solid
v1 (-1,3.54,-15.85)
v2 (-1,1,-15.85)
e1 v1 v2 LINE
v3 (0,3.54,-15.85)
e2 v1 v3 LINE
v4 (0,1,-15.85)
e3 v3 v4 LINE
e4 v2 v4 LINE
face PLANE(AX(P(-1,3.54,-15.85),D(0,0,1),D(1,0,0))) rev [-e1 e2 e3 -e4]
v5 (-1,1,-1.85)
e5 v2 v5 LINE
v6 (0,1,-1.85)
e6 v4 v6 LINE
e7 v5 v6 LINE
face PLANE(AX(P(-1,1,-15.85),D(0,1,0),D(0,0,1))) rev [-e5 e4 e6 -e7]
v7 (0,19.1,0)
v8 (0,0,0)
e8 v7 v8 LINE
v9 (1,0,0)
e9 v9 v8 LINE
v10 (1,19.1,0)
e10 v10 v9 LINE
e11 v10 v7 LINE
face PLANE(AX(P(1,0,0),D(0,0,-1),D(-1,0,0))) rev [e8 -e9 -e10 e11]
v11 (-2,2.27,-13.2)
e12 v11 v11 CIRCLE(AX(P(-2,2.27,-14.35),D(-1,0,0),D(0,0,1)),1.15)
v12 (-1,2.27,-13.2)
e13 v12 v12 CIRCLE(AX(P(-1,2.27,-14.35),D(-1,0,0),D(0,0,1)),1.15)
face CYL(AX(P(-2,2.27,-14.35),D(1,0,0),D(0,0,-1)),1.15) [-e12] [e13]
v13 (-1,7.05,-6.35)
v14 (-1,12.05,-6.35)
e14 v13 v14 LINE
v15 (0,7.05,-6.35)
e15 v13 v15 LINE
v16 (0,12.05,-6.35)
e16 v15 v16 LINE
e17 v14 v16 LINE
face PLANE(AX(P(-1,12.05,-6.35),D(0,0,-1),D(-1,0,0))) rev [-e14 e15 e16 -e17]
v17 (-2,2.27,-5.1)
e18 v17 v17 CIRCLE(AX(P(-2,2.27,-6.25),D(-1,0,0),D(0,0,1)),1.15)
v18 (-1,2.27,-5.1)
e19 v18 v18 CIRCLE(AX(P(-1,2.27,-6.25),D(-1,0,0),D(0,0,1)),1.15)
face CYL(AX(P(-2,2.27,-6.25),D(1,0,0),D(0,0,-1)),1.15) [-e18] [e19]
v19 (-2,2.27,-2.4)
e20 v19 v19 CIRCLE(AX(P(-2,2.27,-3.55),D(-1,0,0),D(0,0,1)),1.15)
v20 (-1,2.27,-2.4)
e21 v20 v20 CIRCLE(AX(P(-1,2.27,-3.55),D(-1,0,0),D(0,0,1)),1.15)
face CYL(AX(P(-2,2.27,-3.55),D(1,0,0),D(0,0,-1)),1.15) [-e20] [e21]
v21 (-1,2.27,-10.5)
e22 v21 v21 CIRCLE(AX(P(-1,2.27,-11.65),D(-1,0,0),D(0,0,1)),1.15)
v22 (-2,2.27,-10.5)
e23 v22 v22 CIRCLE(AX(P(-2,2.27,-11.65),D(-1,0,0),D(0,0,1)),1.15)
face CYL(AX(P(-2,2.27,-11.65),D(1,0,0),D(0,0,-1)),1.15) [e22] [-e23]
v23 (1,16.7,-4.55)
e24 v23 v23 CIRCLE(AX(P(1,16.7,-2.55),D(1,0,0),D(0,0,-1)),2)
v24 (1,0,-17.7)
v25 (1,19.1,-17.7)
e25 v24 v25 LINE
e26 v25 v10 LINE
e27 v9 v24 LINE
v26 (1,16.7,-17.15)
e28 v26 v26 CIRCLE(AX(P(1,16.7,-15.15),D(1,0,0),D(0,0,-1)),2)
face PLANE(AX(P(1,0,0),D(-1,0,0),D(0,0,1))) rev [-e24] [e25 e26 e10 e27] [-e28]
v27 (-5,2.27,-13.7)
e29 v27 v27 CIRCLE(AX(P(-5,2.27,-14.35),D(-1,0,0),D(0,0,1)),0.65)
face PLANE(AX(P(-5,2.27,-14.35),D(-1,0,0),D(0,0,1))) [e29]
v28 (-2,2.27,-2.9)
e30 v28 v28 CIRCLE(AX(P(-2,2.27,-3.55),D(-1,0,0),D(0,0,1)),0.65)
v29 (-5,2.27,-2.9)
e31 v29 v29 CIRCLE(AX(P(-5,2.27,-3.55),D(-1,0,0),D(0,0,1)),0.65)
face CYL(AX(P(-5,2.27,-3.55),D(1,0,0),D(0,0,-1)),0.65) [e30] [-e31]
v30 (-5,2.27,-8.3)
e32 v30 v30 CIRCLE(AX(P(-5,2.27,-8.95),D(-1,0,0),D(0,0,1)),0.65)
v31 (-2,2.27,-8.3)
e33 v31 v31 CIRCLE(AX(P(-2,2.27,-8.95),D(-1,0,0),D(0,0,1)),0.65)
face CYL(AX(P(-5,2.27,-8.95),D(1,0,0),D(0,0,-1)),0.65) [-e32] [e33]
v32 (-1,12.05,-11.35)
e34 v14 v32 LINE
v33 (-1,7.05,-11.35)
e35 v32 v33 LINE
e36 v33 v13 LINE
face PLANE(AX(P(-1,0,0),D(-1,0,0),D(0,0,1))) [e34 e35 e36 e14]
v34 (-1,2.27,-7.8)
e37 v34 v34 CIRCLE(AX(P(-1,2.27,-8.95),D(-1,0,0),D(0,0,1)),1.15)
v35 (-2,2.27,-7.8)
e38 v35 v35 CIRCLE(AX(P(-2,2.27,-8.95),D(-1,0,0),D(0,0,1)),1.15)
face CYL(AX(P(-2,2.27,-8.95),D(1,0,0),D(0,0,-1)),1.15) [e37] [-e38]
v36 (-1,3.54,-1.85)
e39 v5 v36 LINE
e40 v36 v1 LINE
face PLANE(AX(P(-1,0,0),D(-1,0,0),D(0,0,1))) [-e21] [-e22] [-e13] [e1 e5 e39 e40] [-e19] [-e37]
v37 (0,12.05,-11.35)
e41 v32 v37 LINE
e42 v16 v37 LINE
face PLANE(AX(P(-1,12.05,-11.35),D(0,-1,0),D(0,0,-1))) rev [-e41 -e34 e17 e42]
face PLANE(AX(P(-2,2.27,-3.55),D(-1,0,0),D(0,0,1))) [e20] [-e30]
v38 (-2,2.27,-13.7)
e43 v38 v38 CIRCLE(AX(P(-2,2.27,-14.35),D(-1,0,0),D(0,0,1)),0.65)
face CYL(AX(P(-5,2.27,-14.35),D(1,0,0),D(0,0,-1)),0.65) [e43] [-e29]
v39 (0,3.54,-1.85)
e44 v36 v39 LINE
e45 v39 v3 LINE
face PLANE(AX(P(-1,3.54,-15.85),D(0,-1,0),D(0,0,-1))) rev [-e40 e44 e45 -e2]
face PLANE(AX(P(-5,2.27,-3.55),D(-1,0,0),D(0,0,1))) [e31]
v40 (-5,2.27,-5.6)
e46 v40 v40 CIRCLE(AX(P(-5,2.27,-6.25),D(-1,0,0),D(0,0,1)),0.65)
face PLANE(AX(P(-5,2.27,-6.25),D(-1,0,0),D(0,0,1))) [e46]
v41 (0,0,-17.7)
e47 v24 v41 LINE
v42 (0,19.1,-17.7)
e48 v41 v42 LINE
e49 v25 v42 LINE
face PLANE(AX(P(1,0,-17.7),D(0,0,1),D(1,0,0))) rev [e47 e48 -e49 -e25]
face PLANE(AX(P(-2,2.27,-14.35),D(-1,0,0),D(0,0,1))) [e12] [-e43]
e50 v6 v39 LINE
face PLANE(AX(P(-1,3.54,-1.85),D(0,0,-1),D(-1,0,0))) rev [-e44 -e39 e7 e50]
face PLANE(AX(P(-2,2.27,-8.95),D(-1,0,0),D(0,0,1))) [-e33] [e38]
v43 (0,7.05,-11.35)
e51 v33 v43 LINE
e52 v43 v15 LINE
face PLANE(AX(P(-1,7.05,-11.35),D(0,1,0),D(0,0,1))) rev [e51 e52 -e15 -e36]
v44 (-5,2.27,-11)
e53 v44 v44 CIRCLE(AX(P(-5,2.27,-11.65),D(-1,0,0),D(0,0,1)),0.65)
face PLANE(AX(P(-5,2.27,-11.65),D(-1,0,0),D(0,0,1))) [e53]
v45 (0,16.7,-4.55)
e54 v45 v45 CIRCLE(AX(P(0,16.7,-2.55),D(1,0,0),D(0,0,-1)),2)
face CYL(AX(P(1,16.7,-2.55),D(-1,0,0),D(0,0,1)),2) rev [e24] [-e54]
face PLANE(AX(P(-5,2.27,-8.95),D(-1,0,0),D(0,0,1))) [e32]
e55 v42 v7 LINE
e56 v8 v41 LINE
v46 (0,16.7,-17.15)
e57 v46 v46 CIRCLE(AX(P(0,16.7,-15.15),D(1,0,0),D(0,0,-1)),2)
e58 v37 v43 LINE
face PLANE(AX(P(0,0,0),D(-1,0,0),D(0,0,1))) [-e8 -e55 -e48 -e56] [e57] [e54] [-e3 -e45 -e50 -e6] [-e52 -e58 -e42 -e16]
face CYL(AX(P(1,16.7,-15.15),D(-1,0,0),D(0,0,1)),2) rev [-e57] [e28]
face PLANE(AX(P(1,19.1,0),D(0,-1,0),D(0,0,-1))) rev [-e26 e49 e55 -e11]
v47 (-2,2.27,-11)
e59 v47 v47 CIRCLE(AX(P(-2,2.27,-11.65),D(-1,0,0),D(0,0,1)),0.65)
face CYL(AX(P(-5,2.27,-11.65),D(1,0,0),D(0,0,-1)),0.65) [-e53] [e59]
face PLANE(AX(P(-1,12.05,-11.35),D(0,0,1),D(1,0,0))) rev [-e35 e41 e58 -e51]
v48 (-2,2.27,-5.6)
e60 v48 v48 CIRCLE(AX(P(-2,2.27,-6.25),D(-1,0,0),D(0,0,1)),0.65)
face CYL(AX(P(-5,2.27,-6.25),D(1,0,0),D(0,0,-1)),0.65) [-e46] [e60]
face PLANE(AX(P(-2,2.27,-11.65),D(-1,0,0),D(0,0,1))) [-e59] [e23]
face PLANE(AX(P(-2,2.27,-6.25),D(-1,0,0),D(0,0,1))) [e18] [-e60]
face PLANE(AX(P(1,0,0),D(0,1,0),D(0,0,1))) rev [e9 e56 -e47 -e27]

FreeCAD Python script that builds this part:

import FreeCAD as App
import Part
import Sketcher
Q = App.Units.Quantity

doc = App.newDocument("Part")
body = doc.addObject("PartDesign::Body", "Body")

# Sketch on YZ plane
sketch1 = body.newObject("Sketcher::SketchObject", "Sketch")
sketch1.AttachmentSupport = (doc.getObject("YZ_Plane"), [""])
sketch1.MapMode = "FlatFace"
sketch1.addGeometry([
    Part.LineSegment(App.Vector(19.1, 0, 0), App.Vector(0, 0, 0)),  # 0
    Part.LineSegment(App.Vector(0, 0, 0), App.Vector(0, -17.7, 0)),  # 1
    Part.LineSegment(App.Vector(0, -17.7, 0), App.Vector(19.1, -17.7, 0)),  # 2
    Part.LineSegment(App.Vector(19.1, -17.7, 0), App.Vector(19.1, 0, 0)),  # 3
    Part.Circle(App.Vector(16.7, -2.5, 0), App.Vector(0, 0, 1), 2),  # 4
    Part.Circle(App.Vector(16.7, -15.2, 0), App.Vector(0, 0, 1), 2),  # 5
], False)
sketch1.addConstraint([
    Sketcher.Constraint("Coincident", 0, 2, 1, 1),
    Sketcher.Constraint("Coincident", 1, 2, 2, 1),
    Sketcher.Constraint("Coincident", 2, 2, 3, 1),
    Sketcher.Constraint("Coincident", 3, 2, 0, 1),
    Sketcher.Constraint("Horizontal", 0),
    Sketcher.Constraint("Vertical", 1),
    Sketcher.Constraint("Horizontal", 2),
    Sketcher.Constraint("Vertical", 3),
    Sketcher.Constraint("Coincident", 0, 2, -1, 1),
    Sketcher.Constraint("Equal", 4, 5),
    Sketcher.Constraint("Vertical", 4, 3, 5, 3),
    Sketcher.Constraint("Diameter", 4, Q("4 mm")),
    Sketcher.Constraint("DistanceX", 0, 2, 0, 1, Q("19.1 mm")),
    Sketcher.Constraint("DistanceY", 1, 2, 1, 1, Q("17.7 mm")),
    Sketcher.Constraint("DistanceX", -1, 1, 4, 3, Q("16.7 mm")),
    Sketcher.Constraint("DistanceY", 5, 3, 4, 3, Q("12.6 mm")),
    Sketcher.Constraint("DistanceY", 4, 3, -1, 1, Q("2.55 mm")),
])
pad1 = body.newObject("PartDesign::Pad", "Pad")
pad1.Profile = sketch1
pad1.Length = 1

# Sketch on YZ plane
sketch2 = body.newObject("Sketcher::SketchObject", "Sketch001")
sketch2.AttachmentSupport = (doc.getObject("YZ_Plane"), [""])
sketch2.MapMode = "FlatFace"
sketch2.addGeometry([
    Part.LineSegment(App.Vector(3.5, -15.8, 0), App.Vector(1, -15.8, 0)),  # 0
    Part.LineSegment(App.Vector(1, -15.8, 0), App.Vector(1, -1.9, 0)),  # 1
    Part.LineSegment(App.Vector(1, -1.9, 0), App.Vector(3.5, -1.9, 0)),  # 2
    Part.LineSegment(App.Vector(3.5, -1.9, 0), App.Vector(3.5, -15.8, 0)),  # 3
    Part.LineSegment(App.Vector(12.1, -11.3, 0), App.Vector(7, -11.3, 0)),  # 4
    Part.LineSegment(App.Vector(7, -11.3, 0), App.Vector(7, -6.3, 0)),  # 5
    Part.LineSegment(App.Vector(7, -6.3, 0), App.Vector(12.1, -6.3, 0)),  # 6
    Part.LineSegment(App.Vector(12.1, -6.3, 0), App.Vector(12.1, -11.3, 0)),  # 7
], False)
sketch2.addConstraint([
    Sketcher.Constraint("Coincident", 0, 2, 1, 1),
    Sketcher.Constraint("Coincident", 1, 2, 2, 1),
    Sketcher.Constraint("Coincident", 2, 2, 3, 1),
    Sketcher.Constraint("Coincident", 3, 2, 0, 1),
    Sketcher.Constraint("Coincident", 4, 2, 5, 1),
    Sketcher.Constraint("Coincident", 5, 2, 6, 1),
    Sketcher.Constraint("Coincident", 6, 2, 7, 1),
    Sketcher.Constraint("Coincident", 7, 2, 4, 1),
    Sketcher.Constraint("Horizontal", 0),
    Sketcher.Constraint("Vertical", 1),
    Sketcher.Constraint("Horizontal", 2),
    Sketcher.Constraint("Vertical", 3),
    Sketcher.Constraint("Horizontal", 4),
    Sketcher.Constraint("Vertical", 5),
    Sketcher.Constraint("Horizontal", 6),
    Sketcher.Constraint("Vertical", 7),
    Sketcher.Constraint("Equal", 6, 5),
    Sketcher.Constraint("DistanceX", 4, 2, 4, 1, Q("5 mm")),
    Sketcher.Constraint("DistanceY", 1, 1, 1, 2, Q("14 mm")),
    Sketcher.Constraint("DistanceX", -1, 1, 0, 2, Q("1 mm")),
    Sketcher.Constraint("DistanceX", 0, 2, 0, 1, Q("2.54 mm")),
    Sketcher.Constraint("DistanceY", 3, 2, 4, 2, Q("4.5 mm")),
    Sketcher.Constraint("DistanceY", 0, 2, -1, 1, Q("15.85 mm")),
    Sketcher.Constraint("DistanceX", -1, 1, 4, 2, Q("7.05 mm")),
])
pad2 = body.newObject("PartDesign::Pad", "Pad001")
pad2.Profile = sketch2
pad2.Length = 1
pad2.Reversed = True

# Sketch on YZ plane
sketch3 = body.newObject("Sketcher::SketchObject", "Sketch002")
sketch3.AttachmentSupport = (doc.getObject("YZ_Plane"), [""])
sketch3.MapMode = "FlatFace"
sketch3.AttachmentOffset = App.Placement(App.Vector(0, 0, -1), App.Rotation())
sketch3.addGeometry([
    Part.Circle(App.Vector(2.3, -14.3, 0), App.Vector(0, 0, 1), 1.1),  # 0
    Part.Circle(App.Vector(2.3, -11.7, 0), App.Vector(0, 0, 1), 1.1),  # 1
    Part.Circle(App.Vector(2.3, -8.9, 0), App.Vector(0, 0, 1), 1.1),  # 2
    Part.Circle(App.Vector(2.3, -6.2, 0), App.Vector(0, 0, 1), 1.1),  # 3
    Part.Circle(App.Vector(2.3, -3.5, 0), App.Vector(0, 0, 1), 1.1),  # 4
], False)
sketch3.addConstraint([
    Sketcher.Constraint("Equal", 0, 1),
    Sketcher.Constraint("Equal", 1, 2),
    Sketcher.Constraint("Equal", 2, 3),
    Sketcher.Constraint("Equal", 3, 4),
    Sketcher.Constraint("Vertical", 0, 3, 1, 3),
    Sketcher.Constraint("Vertical", 1, 3, 2, 3),
    Sketcher.Constraint("Vertical", 2, 3, 3, 3),
    Sketcher.Constraint("Vertical", 3, 3, 4, 3),
    Sketcher.Constraint("Diameter", 0, Q("2.3 mm")),
    Sketcher.Constraint("DistanceY", 0, 3, 1, 3, Q("2.7 mm")),
    Sketcher.Constraint("DistanceY", 1, 3, 2, 3, Q("2.7 mm")),
    Sketcher.Constraint("DistanceY", 2, 3, 3, 3, Q("2.7 mm")),
    Sketcher.Constraint("DistanceY", 3, 3, 4, 3, Q("2.7 mm")),
    Sketcher.Constraint("DistanceX", -1, 1, 0, 3, Q("2.27 mm")),
    Sketcher.Constraint("DistanceY", 0, 3, -1, 1, Q("14.35 mm")),
])
pad3 = body.newObject("PartDesign::Pad", "Pad002")
pad3.Profile = sketch3
pad3.Length = 1
pad3.Reversed = True

# Sketch on YZ plane
sketch4 = body.newObject("Sketcher::SketchObject", "Sketch003")
sketch4.AttachmentSupport = (doc.getObject("YZ_Plane"), [""])
sketch4.MapMode = "FlatFace"
sketch4.AttachmentOffset = App.Placement(App.Vector(0, 0, -2), App.Rotation())
sketch4.addGeometry([
    Part.Circle(App.Vector(2.3, -14.3, 0), App.Vector(0, 0, 1), 0.7),  # 0
    Part.Circle(App.Vector(2.3, -11.7, 0), App.Vector(0, 0, 1), 0.7),  # 1
    Part.Circle(App.Vector(2.3, -8.9, 0), App.Vector(0, 0, 1), 0.7),  # 2
    Part.Circle(App.Vector(2.3, -6.2, 0), App.Vector(0, 0, 1), 0.7),  # 3
    Part.Circle(App.Vector(2.3, -3.5, 0), App.Vector(0, 0, 1), 0.7),  # 4
], False)
sketch4.addConstraint([
    Sketcher.Constraint("Equal", 0, 1),
    Sketcher.Constraint("Equal", 1, 2),
    Sketcher.Constraint("Equal", 2, 3),
    Sketcher.Constraint("Equal", 3, 4),
    Sketcher.Constraint("Vertical", 0, 3, 1, 3),
    Sketcher.Constraint("Vertical", 1, 3, 2, 3),
    Sketcher.Constraint("Vertical", 2, 3, 3, 3),
    Sketcher.Constraint("Vertical", 3, 3, 4, 3),
    Sketcher.Constraint("Diameter", 0, Q("1.3 mm")),
    Sketcher.Constraint("DistanceY", 0, 3, 1, 3, Q("2.7 mm")),
    Sketcher.Constraint("DistanceY", 1, 3, 2, 3, Q("2.7 mm")),
    Sketcher.Constraint("DistanceY", 2, 3, 3, 3, Q("2.7 mm")),
    Sketcher.Constraint("DistanceY", 3, 3, 4, 3, Q("2.7 mm")),
    Sketcher.Constraint("DistanceX", -1, 1, 0, 3, Q("2.27 mm")),
    Sketcher.Constraint("DistanceY", 0, 3, -1, 1, Q("14.35 mm")),
])
pad4 = body.newObject("PartDesign::Pad", "Pad003")
pad4.Profile = sketch4
pad4.Length = 3
pad4.Reversed = True

doc.recompute()
